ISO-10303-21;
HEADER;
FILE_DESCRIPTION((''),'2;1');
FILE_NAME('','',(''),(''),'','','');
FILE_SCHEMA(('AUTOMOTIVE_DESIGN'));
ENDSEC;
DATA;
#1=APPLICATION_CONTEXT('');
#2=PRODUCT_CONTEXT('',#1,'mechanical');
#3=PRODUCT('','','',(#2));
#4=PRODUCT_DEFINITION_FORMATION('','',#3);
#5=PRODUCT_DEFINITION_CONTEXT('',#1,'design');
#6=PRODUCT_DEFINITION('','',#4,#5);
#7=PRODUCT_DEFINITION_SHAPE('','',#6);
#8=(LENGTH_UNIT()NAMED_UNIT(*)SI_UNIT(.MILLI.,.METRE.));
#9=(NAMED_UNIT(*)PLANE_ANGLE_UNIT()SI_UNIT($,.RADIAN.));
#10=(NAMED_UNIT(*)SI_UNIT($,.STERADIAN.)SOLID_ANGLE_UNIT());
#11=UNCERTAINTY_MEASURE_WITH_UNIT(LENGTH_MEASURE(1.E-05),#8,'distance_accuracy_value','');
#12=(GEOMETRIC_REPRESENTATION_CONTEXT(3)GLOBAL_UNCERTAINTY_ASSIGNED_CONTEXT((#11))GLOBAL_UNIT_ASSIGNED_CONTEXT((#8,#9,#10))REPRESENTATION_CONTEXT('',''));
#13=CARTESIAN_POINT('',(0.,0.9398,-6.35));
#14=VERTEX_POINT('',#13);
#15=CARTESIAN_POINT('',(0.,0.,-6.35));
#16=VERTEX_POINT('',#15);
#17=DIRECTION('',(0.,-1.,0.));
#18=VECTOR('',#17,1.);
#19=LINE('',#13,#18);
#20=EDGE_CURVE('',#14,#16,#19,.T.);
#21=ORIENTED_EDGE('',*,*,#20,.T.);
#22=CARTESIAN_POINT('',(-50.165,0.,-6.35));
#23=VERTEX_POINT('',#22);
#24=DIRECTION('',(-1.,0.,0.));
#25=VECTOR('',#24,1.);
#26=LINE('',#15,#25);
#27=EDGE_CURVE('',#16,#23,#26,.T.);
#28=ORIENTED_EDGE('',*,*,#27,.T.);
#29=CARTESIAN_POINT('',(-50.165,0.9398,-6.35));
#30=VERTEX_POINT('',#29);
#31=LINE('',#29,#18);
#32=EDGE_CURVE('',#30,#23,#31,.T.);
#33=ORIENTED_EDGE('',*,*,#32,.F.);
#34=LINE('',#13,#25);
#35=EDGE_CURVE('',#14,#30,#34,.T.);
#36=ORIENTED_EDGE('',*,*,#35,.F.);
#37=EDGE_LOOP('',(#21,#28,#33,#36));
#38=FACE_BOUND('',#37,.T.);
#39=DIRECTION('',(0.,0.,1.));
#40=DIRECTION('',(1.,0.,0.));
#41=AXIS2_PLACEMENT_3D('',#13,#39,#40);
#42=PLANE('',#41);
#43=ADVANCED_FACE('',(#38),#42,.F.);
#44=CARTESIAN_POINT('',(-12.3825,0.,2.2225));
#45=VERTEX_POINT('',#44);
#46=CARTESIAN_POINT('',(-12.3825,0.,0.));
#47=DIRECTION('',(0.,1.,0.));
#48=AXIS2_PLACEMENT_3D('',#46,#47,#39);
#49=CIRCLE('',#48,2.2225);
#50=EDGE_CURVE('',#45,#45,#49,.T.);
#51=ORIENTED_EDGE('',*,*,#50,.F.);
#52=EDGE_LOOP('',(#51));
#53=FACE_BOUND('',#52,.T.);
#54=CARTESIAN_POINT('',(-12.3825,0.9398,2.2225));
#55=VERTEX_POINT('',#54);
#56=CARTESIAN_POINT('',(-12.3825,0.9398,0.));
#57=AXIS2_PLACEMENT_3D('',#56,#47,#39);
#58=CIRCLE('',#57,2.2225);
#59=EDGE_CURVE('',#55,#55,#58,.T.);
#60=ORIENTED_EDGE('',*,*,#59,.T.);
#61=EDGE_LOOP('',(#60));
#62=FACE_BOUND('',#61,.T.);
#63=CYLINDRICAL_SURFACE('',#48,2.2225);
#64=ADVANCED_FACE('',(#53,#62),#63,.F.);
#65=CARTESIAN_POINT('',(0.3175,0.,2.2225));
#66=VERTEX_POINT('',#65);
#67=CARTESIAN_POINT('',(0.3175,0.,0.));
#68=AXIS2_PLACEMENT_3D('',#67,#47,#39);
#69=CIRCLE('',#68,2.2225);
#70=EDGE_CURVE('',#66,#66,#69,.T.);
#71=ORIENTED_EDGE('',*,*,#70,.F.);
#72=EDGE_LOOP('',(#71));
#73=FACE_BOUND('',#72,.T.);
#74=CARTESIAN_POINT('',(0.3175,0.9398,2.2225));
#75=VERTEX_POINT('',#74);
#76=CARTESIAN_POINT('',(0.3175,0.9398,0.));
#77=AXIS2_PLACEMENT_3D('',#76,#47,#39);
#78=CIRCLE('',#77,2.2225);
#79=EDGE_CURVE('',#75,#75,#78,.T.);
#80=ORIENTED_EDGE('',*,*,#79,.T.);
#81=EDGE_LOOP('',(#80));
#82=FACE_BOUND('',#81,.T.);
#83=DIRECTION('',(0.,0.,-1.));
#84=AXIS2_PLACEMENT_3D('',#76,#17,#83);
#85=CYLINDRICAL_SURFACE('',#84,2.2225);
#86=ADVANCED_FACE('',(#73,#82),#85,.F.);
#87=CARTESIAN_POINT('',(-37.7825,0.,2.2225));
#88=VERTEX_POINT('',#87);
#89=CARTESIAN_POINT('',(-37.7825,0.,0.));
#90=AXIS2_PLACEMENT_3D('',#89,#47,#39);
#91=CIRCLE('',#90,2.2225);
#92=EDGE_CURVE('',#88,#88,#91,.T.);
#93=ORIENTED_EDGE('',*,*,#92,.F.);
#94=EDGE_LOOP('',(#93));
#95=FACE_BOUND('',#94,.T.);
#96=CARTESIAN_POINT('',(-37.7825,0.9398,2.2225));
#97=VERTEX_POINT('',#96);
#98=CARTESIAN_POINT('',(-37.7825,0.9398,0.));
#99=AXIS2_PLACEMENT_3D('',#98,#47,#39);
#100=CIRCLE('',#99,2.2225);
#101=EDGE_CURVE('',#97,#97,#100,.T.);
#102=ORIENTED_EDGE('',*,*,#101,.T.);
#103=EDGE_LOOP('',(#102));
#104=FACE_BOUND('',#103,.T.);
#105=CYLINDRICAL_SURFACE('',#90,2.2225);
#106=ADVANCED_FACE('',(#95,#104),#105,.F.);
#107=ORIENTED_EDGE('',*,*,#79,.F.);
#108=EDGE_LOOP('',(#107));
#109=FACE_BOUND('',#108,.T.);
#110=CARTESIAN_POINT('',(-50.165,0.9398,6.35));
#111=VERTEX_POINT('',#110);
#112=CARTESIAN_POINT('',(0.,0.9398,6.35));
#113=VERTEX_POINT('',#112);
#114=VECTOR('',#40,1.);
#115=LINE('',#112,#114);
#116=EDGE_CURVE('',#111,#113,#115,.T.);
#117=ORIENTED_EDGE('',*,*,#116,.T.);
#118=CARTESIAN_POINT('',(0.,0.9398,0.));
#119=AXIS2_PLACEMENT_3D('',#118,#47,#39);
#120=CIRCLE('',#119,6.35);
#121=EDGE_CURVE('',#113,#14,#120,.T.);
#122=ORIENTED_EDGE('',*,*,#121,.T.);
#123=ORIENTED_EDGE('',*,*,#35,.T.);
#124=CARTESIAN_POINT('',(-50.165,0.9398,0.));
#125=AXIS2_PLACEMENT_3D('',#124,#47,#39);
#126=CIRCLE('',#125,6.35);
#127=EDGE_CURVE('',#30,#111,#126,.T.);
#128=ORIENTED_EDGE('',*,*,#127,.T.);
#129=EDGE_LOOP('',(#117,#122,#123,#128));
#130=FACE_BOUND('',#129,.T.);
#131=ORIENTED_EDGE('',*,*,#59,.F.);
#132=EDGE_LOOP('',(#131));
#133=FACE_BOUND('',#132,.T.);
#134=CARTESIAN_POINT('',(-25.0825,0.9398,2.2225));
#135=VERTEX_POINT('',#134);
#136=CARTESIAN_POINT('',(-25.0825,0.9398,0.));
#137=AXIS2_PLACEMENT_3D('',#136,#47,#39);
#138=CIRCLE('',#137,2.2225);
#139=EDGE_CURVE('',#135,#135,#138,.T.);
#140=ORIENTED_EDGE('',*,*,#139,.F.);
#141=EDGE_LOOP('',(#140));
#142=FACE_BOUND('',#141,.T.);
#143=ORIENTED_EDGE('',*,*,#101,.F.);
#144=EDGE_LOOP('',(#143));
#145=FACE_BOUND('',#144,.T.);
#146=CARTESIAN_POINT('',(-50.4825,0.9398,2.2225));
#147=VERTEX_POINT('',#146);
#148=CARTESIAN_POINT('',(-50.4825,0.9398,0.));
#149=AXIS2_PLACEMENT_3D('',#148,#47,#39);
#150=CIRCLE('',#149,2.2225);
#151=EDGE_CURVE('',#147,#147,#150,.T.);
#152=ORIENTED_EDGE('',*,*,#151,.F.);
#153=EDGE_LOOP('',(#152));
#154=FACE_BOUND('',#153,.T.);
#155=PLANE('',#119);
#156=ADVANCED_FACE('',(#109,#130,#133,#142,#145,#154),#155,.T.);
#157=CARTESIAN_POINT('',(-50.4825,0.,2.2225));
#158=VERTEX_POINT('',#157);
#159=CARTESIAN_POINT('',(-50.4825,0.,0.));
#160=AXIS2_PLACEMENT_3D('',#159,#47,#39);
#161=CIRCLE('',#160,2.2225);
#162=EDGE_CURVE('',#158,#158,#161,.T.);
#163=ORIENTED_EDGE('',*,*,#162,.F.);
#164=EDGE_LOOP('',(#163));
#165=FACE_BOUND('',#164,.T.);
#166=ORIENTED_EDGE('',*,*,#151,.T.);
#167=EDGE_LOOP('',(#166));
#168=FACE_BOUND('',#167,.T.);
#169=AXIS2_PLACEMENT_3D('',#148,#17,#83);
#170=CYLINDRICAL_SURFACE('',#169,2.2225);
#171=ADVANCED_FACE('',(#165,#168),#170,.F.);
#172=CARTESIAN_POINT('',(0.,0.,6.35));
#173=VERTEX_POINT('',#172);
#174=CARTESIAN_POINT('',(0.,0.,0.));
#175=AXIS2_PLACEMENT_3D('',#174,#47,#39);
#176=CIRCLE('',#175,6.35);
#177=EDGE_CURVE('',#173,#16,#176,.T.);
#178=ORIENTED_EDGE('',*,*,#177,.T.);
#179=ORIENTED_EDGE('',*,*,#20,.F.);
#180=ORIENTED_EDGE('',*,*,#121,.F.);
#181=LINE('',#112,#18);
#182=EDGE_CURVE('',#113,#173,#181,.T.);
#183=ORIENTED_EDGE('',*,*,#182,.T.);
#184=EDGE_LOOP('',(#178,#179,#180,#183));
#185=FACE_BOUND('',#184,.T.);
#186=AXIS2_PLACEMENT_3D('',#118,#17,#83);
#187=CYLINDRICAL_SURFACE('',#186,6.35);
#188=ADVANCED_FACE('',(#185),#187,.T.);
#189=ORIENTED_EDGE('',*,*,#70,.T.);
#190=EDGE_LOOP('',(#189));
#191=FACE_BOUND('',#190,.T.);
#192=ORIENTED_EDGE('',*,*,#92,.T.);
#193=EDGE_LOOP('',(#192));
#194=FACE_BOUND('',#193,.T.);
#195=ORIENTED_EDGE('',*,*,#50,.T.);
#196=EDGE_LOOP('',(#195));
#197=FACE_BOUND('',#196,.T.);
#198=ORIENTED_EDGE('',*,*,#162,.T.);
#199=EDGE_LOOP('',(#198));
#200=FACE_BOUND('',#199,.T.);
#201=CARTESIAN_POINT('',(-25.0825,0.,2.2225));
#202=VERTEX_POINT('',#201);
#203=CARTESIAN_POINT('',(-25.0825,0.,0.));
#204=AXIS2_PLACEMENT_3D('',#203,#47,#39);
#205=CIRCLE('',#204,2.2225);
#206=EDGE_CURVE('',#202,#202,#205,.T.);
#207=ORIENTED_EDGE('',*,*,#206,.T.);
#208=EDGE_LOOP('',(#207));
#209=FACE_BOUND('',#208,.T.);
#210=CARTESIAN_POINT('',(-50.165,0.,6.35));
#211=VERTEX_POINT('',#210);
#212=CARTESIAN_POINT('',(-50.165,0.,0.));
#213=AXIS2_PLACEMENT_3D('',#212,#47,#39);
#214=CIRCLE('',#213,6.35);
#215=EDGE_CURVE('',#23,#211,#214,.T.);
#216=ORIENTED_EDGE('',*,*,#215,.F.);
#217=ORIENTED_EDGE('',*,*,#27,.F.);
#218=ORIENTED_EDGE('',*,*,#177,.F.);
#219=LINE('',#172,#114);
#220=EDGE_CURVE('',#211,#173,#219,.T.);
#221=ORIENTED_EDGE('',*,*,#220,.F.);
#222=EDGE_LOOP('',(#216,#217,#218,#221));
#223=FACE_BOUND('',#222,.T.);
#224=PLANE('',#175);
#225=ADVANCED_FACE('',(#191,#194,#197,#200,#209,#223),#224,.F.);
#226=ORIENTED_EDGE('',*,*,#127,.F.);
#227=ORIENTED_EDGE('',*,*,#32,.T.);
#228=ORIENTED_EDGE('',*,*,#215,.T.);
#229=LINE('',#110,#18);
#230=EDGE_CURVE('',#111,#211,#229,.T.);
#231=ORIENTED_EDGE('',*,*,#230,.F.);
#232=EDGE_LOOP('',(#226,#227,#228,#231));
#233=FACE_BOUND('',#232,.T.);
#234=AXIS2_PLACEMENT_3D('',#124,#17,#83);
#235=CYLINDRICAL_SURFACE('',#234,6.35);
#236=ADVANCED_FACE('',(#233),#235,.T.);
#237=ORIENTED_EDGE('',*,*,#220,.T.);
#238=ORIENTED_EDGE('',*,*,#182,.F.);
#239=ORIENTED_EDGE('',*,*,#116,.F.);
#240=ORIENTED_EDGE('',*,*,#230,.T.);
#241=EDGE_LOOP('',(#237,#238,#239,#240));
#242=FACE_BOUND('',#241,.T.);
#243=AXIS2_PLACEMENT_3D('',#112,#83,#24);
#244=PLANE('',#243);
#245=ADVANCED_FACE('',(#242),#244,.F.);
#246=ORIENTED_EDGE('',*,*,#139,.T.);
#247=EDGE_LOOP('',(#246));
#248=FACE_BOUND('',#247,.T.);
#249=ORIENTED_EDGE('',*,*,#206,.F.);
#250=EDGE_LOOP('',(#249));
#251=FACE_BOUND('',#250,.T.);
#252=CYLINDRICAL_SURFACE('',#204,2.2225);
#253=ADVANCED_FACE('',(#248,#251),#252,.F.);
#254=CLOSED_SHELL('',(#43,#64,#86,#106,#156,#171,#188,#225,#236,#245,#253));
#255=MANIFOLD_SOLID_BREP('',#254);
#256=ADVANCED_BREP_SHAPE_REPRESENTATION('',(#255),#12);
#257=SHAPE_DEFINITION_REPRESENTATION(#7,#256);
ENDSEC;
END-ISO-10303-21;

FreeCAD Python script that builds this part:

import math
import FreeCAD as App
import Part
import Sketcher

V = App.Vector
Q = App.Units.Quantity

doc = App.newDocument("Part")
body = doc.addObject("PartDesign::Body", "Body")

sketch1 = body.newObject("Sketcher::SketchObject", "Sketch")
sketch1.AttachmentSupport = (doc.getObject("XZ_Plane"), [""])
sketch1.MapMode = "FlatFace"
sketch1.addGeometry([
    Part.LineSegment(V(-50.2, 6.3, 0), V(0, 6.3, 0)),
    Part.ArcOfCircle(Part.Circle(V(0, 0, 0), V(0, 0, 1), 6.3), math.radians(-90), math.radians(90)),
    Part.LineSegment(V(0, -6.3, 0), V(-50.2, -6.3, 0)),
    Part.ArcOfCircle(Part.Circle(V(-50.2, 0, 0), V(0, 0, 1), 6.3), math.radians(90), math.radians(270)),
    Part.Circle(V(0.3, 0, 0), V(0, 0, 1), 2.2),
    Part.Circle(V(-50.5, 0, 0), V(0, 0, 1), 2.2),
], False)
sketch1.addConstraint([
    Sketcher.Constraint("Tangent", 0, 2, 1, 2),
    Sketcher.Constraint("Tangent", 1, 1, 2, 1),
    Sketcher.Constraint("Tangent", 2, 2, 3, 2),
    Sketcher.Constraint("Tangent", 3, 1, 0, 1),
    Sketcher.Constraint("Horizontal", 0),
    Sketcher.Constraint("Horizontal", 2),
    Sketcher.Constraint("Coincident", 1, 3, -1, 1),
    Sketcher.Constraint("Equal", 4, 5),
    Sketcher.Constraint("PointOnObject", 4, 3, -1),
    Sketcher.Constraint("PointOnObject", 5, 3, -1),
    Sketcher.Constraint("Radius", 1, Q("0.25 in")),
    Sketcher.Constraint("Diameter", 4, Q("0.175 in")),
    Sketcher.Constraint("DistanceX", 5, 3, 4, 3, Q("2 in")),
    Sketcher.Constraint("DistanceX", 0, 1, 0, 2, Q("1.975 in")),
    Sketcher.Constraint("DistanceX", -1, 1, 4, 3, Q("0.0125 in")),
])
pad1 = body.newObject("PartDesign::Pad", "Pad")
pad1.Profile = sketch1
pad1.Length = Q("0.037 in")
pad1.Reversed = True

sketch2 = body.newObject("Sketcher::SketchObject", "Sketch001")
sketch2.AttachmentSupport = (doc.getObject("XZ_Plane"), [""])
sketch2.MapMode = "FlatFace"
sketch2.AttachmentOffset = App.Placement(V(0, 0, -0.037 * 25.4), App.Rotation())
sketch2.addGeometry(Part.Circle(V(-37.8, 0, 0), V(0, 0, 1), 2.2), False)
sketch2.addConstraint([
    Sketcher.Constraint("PointOnObject", 0, 3, -1),
    Sketcher.Constraint("Diameter", 0, Q("0.175 in")),
    Sketcher.Constraint("DistanceX", 0, 3, -1, 1, Q("1.4875 in")),
])
pocket1 = body.newObject("PartDesign::Pocket", "Pocket")
pocket1.Profile = sketch2
pocket1.Type = "ThroughAll"
pocket1.Reversed = True
doc.recompute()

linearpattern = body.newObject("PartDesign::LinearPattern", "LinearPattern")
linearpattern.Originals = [pocket1]
linearpattern.Direction = (doc.getObject("X_Axis"), [""])
linearpattern.Mode = "offset"
linearpattern.Offset = Q("0.5 in")
linearpattern.Occurrences = 3
body.Tip = linearpattern

doc.recompute()
